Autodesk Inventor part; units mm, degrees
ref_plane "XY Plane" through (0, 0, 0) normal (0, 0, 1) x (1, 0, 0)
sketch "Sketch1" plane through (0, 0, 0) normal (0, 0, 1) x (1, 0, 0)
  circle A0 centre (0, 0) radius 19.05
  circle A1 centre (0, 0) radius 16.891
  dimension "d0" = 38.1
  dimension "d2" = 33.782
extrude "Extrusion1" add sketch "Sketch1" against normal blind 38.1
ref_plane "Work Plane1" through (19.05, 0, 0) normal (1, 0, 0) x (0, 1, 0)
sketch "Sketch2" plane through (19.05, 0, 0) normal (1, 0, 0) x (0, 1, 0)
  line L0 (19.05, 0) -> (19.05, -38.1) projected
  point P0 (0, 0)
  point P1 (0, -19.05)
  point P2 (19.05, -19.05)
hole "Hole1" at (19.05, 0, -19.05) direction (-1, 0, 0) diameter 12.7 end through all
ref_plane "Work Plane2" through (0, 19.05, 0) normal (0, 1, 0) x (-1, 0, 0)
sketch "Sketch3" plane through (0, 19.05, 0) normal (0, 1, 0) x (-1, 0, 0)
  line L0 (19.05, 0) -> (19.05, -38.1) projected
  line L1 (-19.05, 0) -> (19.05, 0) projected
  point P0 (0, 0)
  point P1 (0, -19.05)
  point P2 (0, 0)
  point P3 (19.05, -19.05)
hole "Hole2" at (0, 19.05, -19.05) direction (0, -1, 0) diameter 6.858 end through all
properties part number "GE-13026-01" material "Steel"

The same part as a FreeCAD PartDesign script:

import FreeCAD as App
import Part
import Sketcher
Q = App.Units.Quantity

doc = App.newDocument("Part")
body = doc.addObject("PartDesign::Body", "Body")

sketch1 = body.newObject("Sketcher::SketchObject", "Sketch")
sketch1.AttachmentSupport = (doc.getObject("XY_Plane"), [""])
sketch1.MapMode = "FlatFace"
sketch1.addGeometry(Part.Circle(App.Vector(0, 0, 0), App.Vector(0, 0, 1), 19), False)
sketch1.addGeometry(Part.Circle(App.Vector(0, 0, 0), App.Vector(0, 0, 1), 17), False)
sketch1.addConstraint(Sketcher.Constraint("Coincident", 0, 3, -1, 1))
sketch1.addConstraint(Sketcher.Constraint("Coincident", 1, 3, -1, 1))
sketch1.addConstraint(Sketcher.Constraint("Diameter", 0, Q("1.5 in")))
sketch1.addConstraint(Sketcher.Constraint("Diameter", 1, Q("1.33 in")))
pad1 = body.newObject("PartDesign::Pad", "Pad")
pad1.Profile = sketch1
pad1.Length = Q("1.5 in")
pad1.Reversed = True

sketch2 = body.newObject("Sketcher::SketchObject", "Sketch001")
sketch2.AttachmentSupport = (doc.getObject("YZ_Plane"), [""])
sketch2.MapMode = "FlatFace"
sketch2.AttachmentOffset = App.Placement(App.Vector(0, 0, 0.75 * 25.4), App.Rotation())
sketch2.addGeometry(Part.Circle(App.Vector(0, -19, 0), App.Vector(0, 0, 1), 6), False)
sketch2.addConstraint(Sketcher.Constraint("PointOnObject", 0, 3, -2))
sketch2.addConstraint(Sketcher.Constraint("Diameter", 0, Q("0.5 in")))
sketch2.addConstraint(Sketcher.Constraint("DistanceY", 0, 3, -1, 1, Q("0.75 in")))
doc.recompute()
hole = body.newObject("PartDesign::Hole", "Hole")
hole.Profile = sketch2
hole.ThreadType = "None"
hole.Diameter = Q("0.5 in")
hole.DepthType = "ThroughAll"

sketch3 = body.newObject("Sketcher::SketchObject", "Sketch002")
sketch3.AttachmentSupport = (doc.getObject("XZ_Plane"), [""])
sketch3.MapMode = "FlatFace"
sketch3.AttachmentOffset = App.Placement(App.Vector(0, 0, -0.75 * 25.4), App.Rotation())
sketch3.addGeometry(Part.Circle(App.Vector(0, -19.1, 0), App.Vector(0, 0, 1), 3.4), False)
sketch3.addConstraint(Sketcher.Constraint("PointOnObject", 0, 3, -2))
sketch3.addConstraint(Sketcher.Constraint("Diameter", 0, Q("0.27 in")))
sketch3.addConstraint(Sketcher.Constraint("DistanceY", 0, 3, -1, 1, Q("0.75 in")))
doc.recompute()
hole2 = body.newObject("PartDesign::Hole", "Hole001")
hole2.Profile = sketch3
hole2.ThreadType = "None"
hole2.Diameter = Q("0.27 in")
hole2.DepthType = "ThroughAll"
hole2.Reversed = True

doc.recompute()
